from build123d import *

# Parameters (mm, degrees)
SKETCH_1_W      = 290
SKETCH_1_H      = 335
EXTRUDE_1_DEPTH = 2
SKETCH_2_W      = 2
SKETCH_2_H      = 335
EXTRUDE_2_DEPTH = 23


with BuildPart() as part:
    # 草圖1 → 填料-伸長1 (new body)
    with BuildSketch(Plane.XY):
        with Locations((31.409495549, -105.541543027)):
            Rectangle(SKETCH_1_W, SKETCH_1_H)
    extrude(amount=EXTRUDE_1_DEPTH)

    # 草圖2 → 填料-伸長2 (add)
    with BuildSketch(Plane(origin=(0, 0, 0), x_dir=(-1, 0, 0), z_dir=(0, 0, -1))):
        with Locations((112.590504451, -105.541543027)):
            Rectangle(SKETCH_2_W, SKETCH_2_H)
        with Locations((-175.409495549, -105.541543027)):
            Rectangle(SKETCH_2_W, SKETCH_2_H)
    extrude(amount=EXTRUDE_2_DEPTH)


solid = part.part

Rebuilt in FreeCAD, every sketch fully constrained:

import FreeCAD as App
import Part
import Sketcher

V = App.Vector

doc = App.newDocument("Part")
body = doc.addObject("PartDesign::Body", "Body")

sketch1 = body.newObject("Sketcher::SketchObject", "Sketch")
sketch1.AttachmentSupport = (doc.getObject("XY_Plane"), [""])
sketch1.MapMode = "FlatFace"
sketch1.addGeometry(Part.LineSegment(V(-114, 62, 0), V(-114, -273, 0)), False)
sketch1.addGeometry(Part.LineSegment(V(-114, -273, 0), V(176, -273, 0)), False)
sketch1.addGeometry(Part.LineSegment(V(176, -273, 0), V(176, 62, 0)), False)
sketch1.addGeometry(Part.LineSegment(V(176, 62, 0), V(-114, 62, 0)), False)
sketch1.addConstraint(Sketcher.Constraint("Coincident", 0, 2, 1, 1))
sketch1.addConstraint(Sketcher.Constraint("Coincident", 1, 2, 2, 1))
sketch1.addConstraint(Sketcher.Constraint("Coincident", 2, 2, 3, 1))
sketch1.addConstraint(Sketcher.Constraint("Coincident", 3, 2, 0, 1))
sketch1.addConstraint(Sketcher.Constraint("Vertical", 0))
sketch1.addConstraint(Sketcher.Constraint("Horizontal", 1))
sketch1.addConstraint(Sketcher.Constraint("Vertical", 2))
sketch1.addConstraint(Sketcher.Constraint("Horizontal", 3))
sketch1.addConstraint(Sketcher.Constraint("DistanceX", 1, 1, 1, 2, 290.0))
sketch1.addConstraint(Sketcher.Constraint("DistanceY", 0, 2, 0, 1, 335.0))
sketch1.addConstraint(Sketcher.Constraint("DistanceX", 0, 2, -1, 1, 113.590504))
sketch1.addConstraint(Sketcher.Constraint("DistanceY", 0, 2, -1, 1, 273.041543))
pad1 = body.newObject("PartDesign::Pad", "Pad")
pad1.Profile = sketch1
pad1.Length = 2

sketch2 = body.newObject("Sketcher::SketchObject", "Sketch001")
sketch2.AttachmentSupport = (doc.getObject("XY_Plane"), [""])
sketch2.MapMode = "FlatFace"
sketch2.addGeometry(Part.LineSegment(V(-111.6, 62, 0), V(-111.6, -273, 0)), False)
sketch2.addGeometry(Part.LineSegment(V(-111.6, -273, 0), V(-113.6, -273, 0)), False)
sketch2.addGeometry(Part.LineSegment(V(-113.6, -273, 0), V(-113.6, 62, 0)), False)
sketch2.addGeometry(Part.LineSegment(V(-113.6, 62, 0), V(-111.6, 62, 0)), False)
sketch2.addGeometry(Part.LineSegment(V(176.4, 62, 0), V(176.4, -273, 0)), False)
sketch2.addGeometry(Part.LineSegment(V(176.4, -273, 0), V(174.4, -273, 0)), False)
sketch2.addGeometry(Part.LineSegment(V(174.4, -273, 0), V(174.4, 62, 0)), False)
sketch2.addGeometry(Part.LineSegment(V(174.4, 62, 0), V(176.4, 62, 0)), False)
sketch2.addConstraint(Sketcher.Constraint("Coincident", 0, 2, 1, 1))
sketch2.addConstraint(Sketcher.Constraint("Coincident", 1, 2, 2, 1))
sketch2.addConstraint(Sketcher.Constraint("Coincident", 2, 2, 3, 1))
sketch2.addConstraint(Sketcher.Constraint("Coincident", 3, 2, 0, 1))
sketch2.addConstraint(Sketcher.Constraint("Coincident", 4, 2, 5, 1))
sketch2.addConstraint(Sketcher.Constraint("Coincident", 5, 2, 6, 1))
sketch2.addConstraint(Sketcher.Constraint("Coincident", 6, 2, 7, 1))
sketch2.addConstraint(Sketcher.Constraint("Coincident", 7, 2, 4, 1))
sketch2.addConstraint(Sketcher.Constraint("Vertical", 0))
sketch2.addConstraint(Sketcher.Constraint("Horizontal", 1))
sketch2.addConstraint(Sketcher.Constraint("Vertical", 2))
sketch2.addConstraint(Sketcher.Constraint("Horizontal", 3))
sketch2.addConstraint(Sketcher.Constraint("Vertical", 4))
sketch2.addConstraint(Sketcher.Constraint("Horizontal", 5))
sketch2.addConstraint(Sketcher.Constraint("Vertical", 6))
sketch2.addConstraint(Sketcher.Constraint("Horizontal", 7))
sketch2.addConstraint(Sketcher.Constraint("Horizontal", 1, 2, 4, 2))
sketch2.addConstraint(Sketcher.Constraint("Horizontal", 3, 2, 6, 2))
sketch2.addConstraint(Sketcher.Constraint("Equal", 3, 5))
sketch2.addConstraint(Sketcher.Constraint("DistanceX", 1, 2, 1, 1, 2.0))
sketch2.addConstraint(Sketcher.Constraint("DistanceY", 0, 2, 0, 1, 335.0))
sketch2.addConstraint(Sketcher.Constraint("DistanceX", 0, 2, 4, 2, 288.0))
sketch2.addConstraint(Sketcher.Constraint("DistanceX", 0, 2, -1, 1, 111.590504))
sketch2.addConstraint(Sketcher.Constraint("DistanceY", 0, 2, -1, 1, 273.041543))
pad2 = body.newObject("PartDesign::Pad", "Pad001")
pad2.Profile = sketch2
pad2.Length = 23
pad2.Reversed = True

doc.recompute()
